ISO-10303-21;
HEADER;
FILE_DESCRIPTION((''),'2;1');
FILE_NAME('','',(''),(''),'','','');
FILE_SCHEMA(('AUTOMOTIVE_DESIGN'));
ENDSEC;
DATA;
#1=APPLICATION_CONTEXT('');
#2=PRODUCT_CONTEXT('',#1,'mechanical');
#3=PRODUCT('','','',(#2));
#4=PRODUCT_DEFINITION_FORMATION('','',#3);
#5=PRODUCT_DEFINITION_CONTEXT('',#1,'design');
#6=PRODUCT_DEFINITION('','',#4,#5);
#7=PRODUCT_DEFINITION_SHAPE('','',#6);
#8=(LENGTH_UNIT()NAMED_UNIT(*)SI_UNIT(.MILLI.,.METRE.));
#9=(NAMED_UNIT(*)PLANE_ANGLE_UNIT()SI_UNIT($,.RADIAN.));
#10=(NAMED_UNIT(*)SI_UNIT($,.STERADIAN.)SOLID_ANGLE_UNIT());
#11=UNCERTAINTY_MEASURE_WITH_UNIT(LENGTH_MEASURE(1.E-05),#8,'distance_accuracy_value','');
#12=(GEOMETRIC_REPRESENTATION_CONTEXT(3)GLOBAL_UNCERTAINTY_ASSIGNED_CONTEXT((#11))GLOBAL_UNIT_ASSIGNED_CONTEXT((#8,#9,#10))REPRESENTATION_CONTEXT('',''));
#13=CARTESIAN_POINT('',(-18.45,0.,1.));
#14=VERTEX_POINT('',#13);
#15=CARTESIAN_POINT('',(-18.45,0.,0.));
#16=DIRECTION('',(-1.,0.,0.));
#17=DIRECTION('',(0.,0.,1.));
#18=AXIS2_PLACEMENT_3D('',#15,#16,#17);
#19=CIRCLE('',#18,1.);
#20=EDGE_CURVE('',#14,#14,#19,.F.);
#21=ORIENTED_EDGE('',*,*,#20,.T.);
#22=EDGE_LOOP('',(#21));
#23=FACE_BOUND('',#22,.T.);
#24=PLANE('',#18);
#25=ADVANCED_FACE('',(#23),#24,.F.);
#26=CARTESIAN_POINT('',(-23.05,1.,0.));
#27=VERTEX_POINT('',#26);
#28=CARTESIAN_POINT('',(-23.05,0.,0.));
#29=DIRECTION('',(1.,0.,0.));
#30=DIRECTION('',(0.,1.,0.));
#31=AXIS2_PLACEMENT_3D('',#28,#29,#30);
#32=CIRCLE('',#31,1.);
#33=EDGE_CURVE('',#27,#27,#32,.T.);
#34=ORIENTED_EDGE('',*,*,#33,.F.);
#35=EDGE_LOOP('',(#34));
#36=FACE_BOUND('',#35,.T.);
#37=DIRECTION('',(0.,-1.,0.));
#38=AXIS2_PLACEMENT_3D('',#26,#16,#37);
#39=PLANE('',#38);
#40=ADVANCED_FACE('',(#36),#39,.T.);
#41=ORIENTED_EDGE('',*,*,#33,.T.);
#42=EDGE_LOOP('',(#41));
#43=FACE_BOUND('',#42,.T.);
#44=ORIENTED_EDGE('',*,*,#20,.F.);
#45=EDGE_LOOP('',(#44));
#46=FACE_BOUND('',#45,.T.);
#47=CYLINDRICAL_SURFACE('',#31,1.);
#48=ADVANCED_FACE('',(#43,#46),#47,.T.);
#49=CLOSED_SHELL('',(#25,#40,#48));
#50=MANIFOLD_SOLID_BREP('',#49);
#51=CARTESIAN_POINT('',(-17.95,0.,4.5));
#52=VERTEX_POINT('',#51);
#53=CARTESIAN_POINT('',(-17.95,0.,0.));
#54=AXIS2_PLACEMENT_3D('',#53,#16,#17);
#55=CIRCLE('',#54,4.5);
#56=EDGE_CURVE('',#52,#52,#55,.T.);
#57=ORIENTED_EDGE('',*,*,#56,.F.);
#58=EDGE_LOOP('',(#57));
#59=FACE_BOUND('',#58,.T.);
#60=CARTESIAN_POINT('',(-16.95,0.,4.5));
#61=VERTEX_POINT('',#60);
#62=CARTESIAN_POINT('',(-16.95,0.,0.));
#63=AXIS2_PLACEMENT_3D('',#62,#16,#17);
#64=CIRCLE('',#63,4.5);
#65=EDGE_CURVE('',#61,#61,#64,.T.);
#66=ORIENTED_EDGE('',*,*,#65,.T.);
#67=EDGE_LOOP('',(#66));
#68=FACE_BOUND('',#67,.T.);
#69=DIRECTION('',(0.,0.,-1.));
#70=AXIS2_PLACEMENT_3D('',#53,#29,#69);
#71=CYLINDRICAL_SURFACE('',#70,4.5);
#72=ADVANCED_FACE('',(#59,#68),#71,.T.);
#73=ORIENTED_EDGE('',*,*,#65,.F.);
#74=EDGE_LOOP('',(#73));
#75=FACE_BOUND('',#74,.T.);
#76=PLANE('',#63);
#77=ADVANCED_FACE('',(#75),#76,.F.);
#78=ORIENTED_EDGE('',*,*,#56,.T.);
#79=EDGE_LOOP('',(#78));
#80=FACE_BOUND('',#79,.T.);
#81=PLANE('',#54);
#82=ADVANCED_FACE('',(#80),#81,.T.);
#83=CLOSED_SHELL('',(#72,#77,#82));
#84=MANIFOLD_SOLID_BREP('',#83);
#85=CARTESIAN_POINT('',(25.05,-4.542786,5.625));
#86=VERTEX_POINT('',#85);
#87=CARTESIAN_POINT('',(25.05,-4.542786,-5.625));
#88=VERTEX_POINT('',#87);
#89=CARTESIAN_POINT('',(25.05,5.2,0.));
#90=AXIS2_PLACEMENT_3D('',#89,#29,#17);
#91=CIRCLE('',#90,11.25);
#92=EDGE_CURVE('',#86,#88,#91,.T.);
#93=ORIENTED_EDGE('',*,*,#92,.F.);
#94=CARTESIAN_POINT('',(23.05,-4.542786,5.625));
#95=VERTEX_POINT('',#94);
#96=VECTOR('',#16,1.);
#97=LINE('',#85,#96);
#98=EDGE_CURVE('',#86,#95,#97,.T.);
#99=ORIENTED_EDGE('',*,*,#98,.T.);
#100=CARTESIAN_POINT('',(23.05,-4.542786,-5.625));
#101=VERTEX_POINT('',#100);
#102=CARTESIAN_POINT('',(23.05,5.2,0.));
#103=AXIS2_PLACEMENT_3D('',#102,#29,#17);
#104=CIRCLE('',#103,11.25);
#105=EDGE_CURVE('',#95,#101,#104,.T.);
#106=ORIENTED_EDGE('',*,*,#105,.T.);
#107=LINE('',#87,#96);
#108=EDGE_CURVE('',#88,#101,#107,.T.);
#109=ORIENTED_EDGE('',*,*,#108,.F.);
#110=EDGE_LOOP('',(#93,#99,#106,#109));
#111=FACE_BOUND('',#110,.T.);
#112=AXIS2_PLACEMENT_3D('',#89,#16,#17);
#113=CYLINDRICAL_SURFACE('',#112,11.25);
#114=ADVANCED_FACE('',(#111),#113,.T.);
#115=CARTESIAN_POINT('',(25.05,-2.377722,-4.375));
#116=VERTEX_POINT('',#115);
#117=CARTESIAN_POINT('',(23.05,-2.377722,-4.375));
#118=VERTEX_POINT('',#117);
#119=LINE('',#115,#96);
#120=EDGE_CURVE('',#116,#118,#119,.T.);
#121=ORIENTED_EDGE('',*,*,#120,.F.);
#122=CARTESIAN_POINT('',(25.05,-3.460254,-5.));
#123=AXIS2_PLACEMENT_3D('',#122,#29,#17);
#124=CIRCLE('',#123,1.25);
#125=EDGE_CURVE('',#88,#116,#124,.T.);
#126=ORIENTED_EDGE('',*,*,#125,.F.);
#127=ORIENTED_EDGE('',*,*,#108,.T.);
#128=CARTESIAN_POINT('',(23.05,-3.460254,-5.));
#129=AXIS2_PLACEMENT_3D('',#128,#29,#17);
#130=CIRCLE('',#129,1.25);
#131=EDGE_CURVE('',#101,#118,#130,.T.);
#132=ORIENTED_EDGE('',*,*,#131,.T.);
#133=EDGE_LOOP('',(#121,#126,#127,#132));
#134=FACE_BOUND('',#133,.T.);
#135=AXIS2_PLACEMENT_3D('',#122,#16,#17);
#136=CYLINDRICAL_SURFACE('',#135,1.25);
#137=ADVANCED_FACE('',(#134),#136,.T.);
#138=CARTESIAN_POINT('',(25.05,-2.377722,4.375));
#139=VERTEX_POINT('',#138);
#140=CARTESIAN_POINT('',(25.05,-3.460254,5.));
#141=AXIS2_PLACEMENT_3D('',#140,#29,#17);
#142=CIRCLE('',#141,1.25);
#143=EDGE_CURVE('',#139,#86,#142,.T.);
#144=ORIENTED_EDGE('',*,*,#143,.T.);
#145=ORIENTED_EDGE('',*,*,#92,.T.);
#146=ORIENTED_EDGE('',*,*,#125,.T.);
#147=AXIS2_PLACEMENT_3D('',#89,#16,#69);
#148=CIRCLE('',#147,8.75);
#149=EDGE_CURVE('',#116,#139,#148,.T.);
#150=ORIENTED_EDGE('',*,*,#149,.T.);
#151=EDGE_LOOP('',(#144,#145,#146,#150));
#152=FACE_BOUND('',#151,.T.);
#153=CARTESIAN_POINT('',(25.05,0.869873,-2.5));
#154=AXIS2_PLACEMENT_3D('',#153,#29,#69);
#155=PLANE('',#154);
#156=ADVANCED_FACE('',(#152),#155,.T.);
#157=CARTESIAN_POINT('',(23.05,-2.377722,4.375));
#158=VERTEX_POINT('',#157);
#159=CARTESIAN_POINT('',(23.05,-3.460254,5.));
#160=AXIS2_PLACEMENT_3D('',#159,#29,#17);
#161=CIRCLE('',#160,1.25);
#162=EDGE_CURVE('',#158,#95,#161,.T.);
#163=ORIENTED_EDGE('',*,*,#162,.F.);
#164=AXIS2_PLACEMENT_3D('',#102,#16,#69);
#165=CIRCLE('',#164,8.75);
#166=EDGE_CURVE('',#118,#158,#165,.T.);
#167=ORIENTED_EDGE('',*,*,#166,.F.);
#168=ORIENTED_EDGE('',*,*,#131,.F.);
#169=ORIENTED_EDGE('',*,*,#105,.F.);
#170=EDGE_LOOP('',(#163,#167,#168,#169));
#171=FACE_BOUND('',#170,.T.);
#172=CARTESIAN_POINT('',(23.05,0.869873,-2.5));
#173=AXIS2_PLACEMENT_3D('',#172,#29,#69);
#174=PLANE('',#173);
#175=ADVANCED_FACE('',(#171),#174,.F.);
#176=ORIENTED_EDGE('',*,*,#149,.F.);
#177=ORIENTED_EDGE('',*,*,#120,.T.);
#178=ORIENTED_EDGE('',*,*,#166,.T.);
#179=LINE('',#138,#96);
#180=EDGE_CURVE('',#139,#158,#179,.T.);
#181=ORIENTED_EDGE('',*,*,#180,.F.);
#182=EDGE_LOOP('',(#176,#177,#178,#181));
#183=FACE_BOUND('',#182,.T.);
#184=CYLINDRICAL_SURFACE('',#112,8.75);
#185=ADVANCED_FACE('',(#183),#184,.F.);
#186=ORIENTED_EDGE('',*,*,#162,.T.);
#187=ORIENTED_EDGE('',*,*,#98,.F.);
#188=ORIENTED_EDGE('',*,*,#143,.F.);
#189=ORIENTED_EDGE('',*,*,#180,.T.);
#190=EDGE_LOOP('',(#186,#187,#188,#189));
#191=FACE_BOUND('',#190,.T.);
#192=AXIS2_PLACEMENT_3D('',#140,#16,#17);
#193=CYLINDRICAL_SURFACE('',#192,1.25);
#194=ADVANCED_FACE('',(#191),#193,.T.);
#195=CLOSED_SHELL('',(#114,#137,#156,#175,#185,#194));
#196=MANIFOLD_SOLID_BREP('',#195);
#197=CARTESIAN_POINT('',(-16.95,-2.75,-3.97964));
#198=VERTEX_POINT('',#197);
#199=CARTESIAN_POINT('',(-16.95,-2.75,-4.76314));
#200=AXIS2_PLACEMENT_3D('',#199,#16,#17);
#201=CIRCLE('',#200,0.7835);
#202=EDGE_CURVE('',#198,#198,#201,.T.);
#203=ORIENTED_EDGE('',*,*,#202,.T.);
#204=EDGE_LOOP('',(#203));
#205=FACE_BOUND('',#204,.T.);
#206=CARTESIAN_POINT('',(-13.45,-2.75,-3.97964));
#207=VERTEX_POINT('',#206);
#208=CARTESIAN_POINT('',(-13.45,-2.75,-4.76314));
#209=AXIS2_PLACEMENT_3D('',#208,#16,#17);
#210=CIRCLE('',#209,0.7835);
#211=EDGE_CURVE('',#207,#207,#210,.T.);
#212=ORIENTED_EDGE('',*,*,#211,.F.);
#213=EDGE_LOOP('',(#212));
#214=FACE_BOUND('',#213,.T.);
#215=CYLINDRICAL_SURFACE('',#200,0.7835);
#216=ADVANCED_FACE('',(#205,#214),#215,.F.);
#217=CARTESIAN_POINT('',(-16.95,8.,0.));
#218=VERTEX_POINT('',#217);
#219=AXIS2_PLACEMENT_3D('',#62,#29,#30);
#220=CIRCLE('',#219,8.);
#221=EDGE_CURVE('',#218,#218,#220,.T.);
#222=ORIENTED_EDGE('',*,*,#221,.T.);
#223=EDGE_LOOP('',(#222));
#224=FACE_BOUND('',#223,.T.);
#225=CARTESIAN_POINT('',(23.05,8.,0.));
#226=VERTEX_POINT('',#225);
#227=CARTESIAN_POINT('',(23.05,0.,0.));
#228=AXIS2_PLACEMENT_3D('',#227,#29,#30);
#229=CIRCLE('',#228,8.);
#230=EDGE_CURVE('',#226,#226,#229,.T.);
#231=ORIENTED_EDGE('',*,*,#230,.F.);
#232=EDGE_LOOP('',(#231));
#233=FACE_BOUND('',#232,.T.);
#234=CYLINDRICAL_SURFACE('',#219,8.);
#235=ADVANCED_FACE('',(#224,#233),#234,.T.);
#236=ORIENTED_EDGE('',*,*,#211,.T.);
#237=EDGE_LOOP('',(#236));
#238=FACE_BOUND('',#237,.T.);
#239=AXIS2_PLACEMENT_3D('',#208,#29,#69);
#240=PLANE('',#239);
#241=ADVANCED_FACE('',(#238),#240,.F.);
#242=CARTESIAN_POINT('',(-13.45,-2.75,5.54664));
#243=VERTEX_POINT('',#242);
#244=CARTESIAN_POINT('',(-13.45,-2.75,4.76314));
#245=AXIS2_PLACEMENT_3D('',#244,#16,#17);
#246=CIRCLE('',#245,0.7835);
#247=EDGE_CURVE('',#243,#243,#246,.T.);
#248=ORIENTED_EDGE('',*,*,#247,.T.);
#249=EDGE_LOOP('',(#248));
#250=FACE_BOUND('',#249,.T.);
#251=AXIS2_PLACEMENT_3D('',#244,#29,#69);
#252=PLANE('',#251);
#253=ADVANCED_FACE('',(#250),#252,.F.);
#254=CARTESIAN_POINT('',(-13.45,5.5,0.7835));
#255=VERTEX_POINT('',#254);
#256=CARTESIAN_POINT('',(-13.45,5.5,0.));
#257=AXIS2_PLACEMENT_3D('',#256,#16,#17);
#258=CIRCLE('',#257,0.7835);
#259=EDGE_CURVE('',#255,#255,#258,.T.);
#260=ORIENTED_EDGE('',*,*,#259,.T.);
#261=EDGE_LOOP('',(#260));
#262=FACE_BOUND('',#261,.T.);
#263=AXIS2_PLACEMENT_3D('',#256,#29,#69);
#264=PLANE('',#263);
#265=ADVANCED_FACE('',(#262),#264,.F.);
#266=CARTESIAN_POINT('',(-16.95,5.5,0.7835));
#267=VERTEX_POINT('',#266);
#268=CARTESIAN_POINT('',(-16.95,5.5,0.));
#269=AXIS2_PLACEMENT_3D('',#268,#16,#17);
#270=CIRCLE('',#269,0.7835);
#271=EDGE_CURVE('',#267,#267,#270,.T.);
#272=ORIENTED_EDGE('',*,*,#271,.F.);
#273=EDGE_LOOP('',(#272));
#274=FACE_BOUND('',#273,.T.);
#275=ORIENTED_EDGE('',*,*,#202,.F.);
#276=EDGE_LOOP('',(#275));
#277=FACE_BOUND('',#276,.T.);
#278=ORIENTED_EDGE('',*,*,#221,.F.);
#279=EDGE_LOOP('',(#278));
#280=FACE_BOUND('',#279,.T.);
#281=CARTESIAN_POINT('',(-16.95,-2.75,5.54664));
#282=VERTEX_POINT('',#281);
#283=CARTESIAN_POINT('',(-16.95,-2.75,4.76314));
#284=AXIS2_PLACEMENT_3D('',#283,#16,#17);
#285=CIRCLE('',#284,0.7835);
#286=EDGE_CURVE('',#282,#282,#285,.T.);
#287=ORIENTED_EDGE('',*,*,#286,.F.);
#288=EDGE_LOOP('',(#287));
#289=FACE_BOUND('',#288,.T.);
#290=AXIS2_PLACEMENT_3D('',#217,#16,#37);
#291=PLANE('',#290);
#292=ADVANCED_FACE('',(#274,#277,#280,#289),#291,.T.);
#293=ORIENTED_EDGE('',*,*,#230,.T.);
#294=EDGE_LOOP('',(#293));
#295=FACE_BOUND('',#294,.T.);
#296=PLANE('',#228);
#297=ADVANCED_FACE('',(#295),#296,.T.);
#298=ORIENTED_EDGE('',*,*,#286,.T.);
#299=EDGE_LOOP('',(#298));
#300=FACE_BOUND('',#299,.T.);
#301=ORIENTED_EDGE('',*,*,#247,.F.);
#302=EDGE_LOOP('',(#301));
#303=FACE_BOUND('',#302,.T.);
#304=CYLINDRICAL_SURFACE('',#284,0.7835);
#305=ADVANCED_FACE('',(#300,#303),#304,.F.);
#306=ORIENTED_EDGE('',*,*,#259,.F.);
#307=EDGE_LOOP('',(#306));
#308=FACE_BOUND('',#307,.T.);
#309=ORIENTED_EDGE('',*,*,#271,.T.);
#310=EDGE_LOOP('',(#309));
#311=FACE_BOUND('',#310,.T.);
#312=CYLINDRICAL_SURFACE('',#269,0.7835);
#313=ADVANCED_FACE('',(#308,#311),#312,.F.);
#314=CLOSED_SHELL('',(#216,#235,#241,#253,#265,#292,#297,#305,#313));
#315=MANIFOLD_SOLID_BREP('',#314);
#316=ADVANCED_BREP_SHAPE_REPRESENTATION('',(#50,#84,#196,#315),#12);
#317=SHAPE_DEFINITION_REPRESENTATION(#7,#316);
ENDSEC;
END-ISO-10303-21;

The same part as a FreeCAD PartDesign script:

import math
import FreeCAD as App
import Part
import Sketcher

V = App.Vector


def add_polygon(sketch, points):
    """Adds a closed chain of lines whose ends are joined by coincident constraints."""
    first, n = sketch.GeometryCount, len(points)
    for a, b in zip(points, points[1:] + points[:1]):
        sketch.addGeometry(Part.LineSegment(App.Vector(*a, 0), App.Vector(*b, 0)), False)
    for i in range(n):
        sketch.addConstraint(Sketcher.Constraint("Coincident", first + i, 2, first + (i + 1) % n, 1))

doc = App.newDocument("Part")
body = doc.addObject("PartDesign::Body", "Body")

# Sketch on XY plane
sketch1 = body.newObject("Sketcher::SketchObject", "Sketch")
sketch1.AttachmentSupport = (doc.getObject("XY_Plane"), [""])
sketch1.MapMode = "FlatFace"
add_polygon(sketch1, [(-23.1, 1), (-23.1, 0), (-17.9, 0), (-17.9, 1)])  # lines 0-3
sketch1.addConstraint(Sketcher.Constraint("Vertical", 0))
sketch1.addConstraint(Sketcher.Constraint("Horizontal", 1))
sketch1.addConstraint(Sketcher.Constraint("Vertical", 2))
sketch1.addConstraint(Sketcher.Constraint("Horizontal", 3))
sketch1.addConstraint(Sketcher.Constraint("PointOnObject", 0, 2, -1))
sketch1.addConstraint(Sketcher.Constraint("DistanceY", 0, 2, 0, 1, 1.0))
sketch1.addConstraint(Sketcher.Constraint("DistanceX", 1, 1, 1, 2, 5.1))
sketch1.addConstraint(Sketcher.Constraint("DistanceX", 0, 2, -1, 1, 23.05))
revolution = body.newObject("PartDesign::Revolution", "Revolution")
revolution.Profile = sketch1
revolution.ReferenceAxis = (sketch1, ["H_Axis"])
revolution.Angle = 360

# Sketch on XZ plane
sketch2 = body.newObject("Sketcher::SketchObject", "Sketch001")
sketch2.AttachmentSupport = (doc.getObject("XZ_Plane"), [""])
sketch2.MapMode = "FlatFace"
add_polygon(sketch2, [(-18.4, 0), (-17.9, 0), (-17.9, -3.5), (-18.4, -3.5)])  # lines 0-3
sketch2.addConstraint(Sketcher.Constraint("Horizontal", 0))
sketch2.addConstraint(Sketcher.Constraint("Vertical", 1))
sketch2.addConstraint(Sketcher.Constraint("Horizontal", 2))
sketch2.addConstraint(Sketcher.Constraint("Vertical", 3))
sketch2.addConstraint(Sketcher.Constraint("PointOnObject", 0, 2, -1))
sketch2.addConstraint(Sketcher.Constraint("DistanceX", 0, 1, 0, 2, 0.5))
sketch2.addConstraint(Sketcher.Constraint("DistanceY", 1, 2, 1, 1, 3.5))
sketch2.addConstraint(Sketcher.Constraint("DistanceX", 0, 2, -1, 1, 17.95))
groove = body.newObject("PartDesign::Groove", "Groove")
groove.Profile = sketch2
groove.ReferenceAxis = (sketch2, ["H_Axis"])
groove.Angle = 360
body2 = doc.addObject("PartDesign::Body", "Body001")

# Sketch on XY plane
sketch3 = body2.newObject("Sketcher::SketchObject", "Sketch002")
sketch3.AttachmentSupport = (doc.getObject("XY_Plane001"), [""])
sketch3.MapMode = "FlatFace"
add_polygon(sketch3, [(-17, 8), (-17, 0), (23, 0), (23, 8)])  # lines 0-3
sketch3.addConstraint(Sketcher.Constraint("Vertical", 0))
sketch3.addConstraint(Sketcher.Constraint("Horizontal", 1))
sketch3.addConstraint(Sketcher.Constraint("Vertical", 2))
sketch3.addConstraint(Sketcher.Constraint("Horizontal", 3))
sketch3.addConstraint(Sketcher.Constraint("PointOnObject", 0, 2, -1))
sketch3.addConstraint(Sketcher.Constraint("DistanceX", 1, 1, 1, 2, 40.0))
sketch3.addConstraint(Sketcher.Constraint("DistanceY", 0, 2, 0, 1, 8.0))
sketch3.addConstraint(Sketcher.Constraint("DistanceX", 0, 2, -1, 1, 16.95))
revolution2 = body2.newObject("PartDesign::Revolution", "Revolution001")
revolution2.Profile = sketch3
revolution2.ReferenceAxis = (sketch3, ["H_Axis"])
revolution2.Angle = 360

# Sketch on XZ plane
sketch4 = body2.newObject("Sketcher::SketchObject", "Sketch003")
sketch4.AttachmentSupport = (doc.getObject("XZ_Plane001"), [""])
sketch4.MapMode = "FlatFace"
sketch4.AttachmentOffset = App.Placement(V(0, 0, 2.75), App.Rotation())
add_polygon(sketch4, [(-13.4, -4.8), (-16.9, -4.8), (-16.9, -4), (-13.4, -4)])  # lines 0-3
sketch4.addGeometry(Part.LineSegment(V(-13.4, -4.8, 0), V(-16.9, -4.8, 0)), True)  # axis
sketch4.addConstraint(Sketcher.Constraint("Horizontal", 0))
sketch4.addConstraint(Sketcher.Constraint("Vertical", 1))
sketch4.addConstraint(Sketcher.Constraint("Horizontal", 2))
sketch4.addConstraint(Sketcher.Constraint("Vertical", 3))
sketch4.addConstraint(Sketcher.Constraint("Horizontal", 4))
sketch4.addConstraint(Sketcher.Constraint("Coincident", 4, 1, 3, 2))
sketch4.addConstraint(Sketcher.Constraint("Vertical", 1, 2, 4, 2))
sketch4.addConstraint(Sketcher.Constraint("DistanceX", 0, 2, 0, 1, 3.5))
sketch4.addConstraint(Sketcher.Constraint("DistanceX", 0, 2, -1, 1, 16.95))
sketch4.addConstraint(Sketcher.Constraint("DistanceY", 1, 1, 1, 2, 0.7835))
sketch4.addConstraint(Sketcher.Constraint("DistanceY", 0, 2, -1, 1, 4.76314))
groove2 = body2.newObject("PartDesign::Groove", "Groove001")
groove2.Profile = sketch4
groove2.ReferenceAxis = (sketch4, ["Axis0"])
groove2.Angle = 360
doc.recompute()

linearpattern = body2.newObject("PartDesign::LinearPattern", "LinearPattern")
linearpattern.Originals = [groove2]
linearpattern.Direction = (doc.getObject("Z_Axis001"), [""])
linearpattern.Mode = "offset"
linearpattern.Offset = 9.526279
linearpattern.Occurrences = 2
body2.Tip = linearpattern
doc.recompute()

datumline = body2.newObject("PartDesign::Line", "DatumLine")
datumline.Placement = App.Placement(V(0, 0, 0), App.Rotation(V(0, 0, 1), V(0, 0.866025404, 0.5)))
linearpattern2 = body2.newObject("PartDesign::LinearPattern", "LinearPattern001")
linearpattern2.Originals = [groove2]
linearpattern2.Direction = (datumline, [""])
linearpattern2.Mode = "offset"
linearpattern2.Offset = 9.526279
linearpattern2.Occurrences = 2
body2.Tip = linearpattern2
body3 = doc.addObject("PartDesign::Body", "Body002")

# Sketch on YZ plane
sketch5 = body3.newObject("Sketcher::SketchObject", "Sketch004")
sketch5.AttachmentSupport = (doc.getObject("YZ_Plane002"), [""])
sketch5.MapMode = "FlatFace"
sketch5.AttachmentOffset = App.Placement(V(0, 0, 23.05), App.Rotation())
sketch5.addGeometry(Part.ArcOfCircle(Part.Circle(V(-3.5, -5, 0), V(0, 0, 1), 1.2), math.radians(-150), math.radians(30)), False)
sketch5.addGeometry(Part.ArcOfCircle(Part.Circle(V(5.2, 0, 0), V(0, 0, 1), 8.7), math.radians(150), math.radians(210)), False)
sketch5.addGeometry(Part.ArcOfCircle(Part.Circle(V(-3.5, 5, 0), V(0, 0, 1), 1.2), math.radians(-30), math.radians(150)), False)
sketch5.addGeometry(Part.ArcOfCircle(Part.Circle(V(5.2, 0, 0), V(0, 0, 1), 11.3), math.radians(150), math.radians(210)), False)
sketch5.addConstraint(Sketcher.Constraint("Tangent", 0, 2, 1, 2))
sketch5.addConstraint(Sketcher.Constraint("Tangent", 1, 1, 2, 1))
sketch5.addConstraint(Sketcher.Constraint("Tangent", 2, 2, 3, 1))
sketch5.addConstraint(Sketcher.Constraint("Tangent", 3, 2, 0, 1))
sketch5.addConstraint(Sketcher.Constraint("Coincident", 3, 3, 1, 3))
sketch5.addConstraint(Sketcher.Constraint("Symmetric", 0, 3, 2, 3, -1))
sketch5.addConstraint(Sketcher.Constraint("Radius", 0, 1.25))
sketch5.addConstraint(Sketcher.Constraint("Radius", 1, 8.75))
sketch5.addConstraint(Sketcher.Constraint("DistanceY", 0, 3, -1, 1, 5.0))
sketch5.addConstraint(Sketcher.Constraint("DistanceX", -1, 1, 1, 3, 5.2))
pad1 = body3.newObject("PartDesign::Pad", "Pad")
pad1.Profile = sketch5
pad1.Length = 2
body4 = doc.addObject("PartDesign::Body", "Body003")

# Sketch on YZ plane
sketch6 = body4.newObject("Sketcher::SketchObject", "Sketch005")
sketch6.AttachmentSupport = (doc.getObject("YZ_Plane003"), [""])
sketch6.MapMode = "FlatFace"
sketch6.AttachmentOffset = App.Placement(V(0, 0, -16.95), App.Rotation())
sketch6.addGeometry(Part.Circle(V(0, 0, 0), V(0, 0, 1), 4.5), False)
sketch6.addConstraint(Sketcher.Constraint("Coincident", 0, 3, -1, 1))
sketch6.addConstraint(Sketcher.Constraint("Diameter", 0, 9.0))
pad2 = body4.newObject("PartDesign::Pad", "Pad001")
pad2.Profile = sketch6
pad2.Length = 1
pad2.Reversed = True

doc.recompute()
